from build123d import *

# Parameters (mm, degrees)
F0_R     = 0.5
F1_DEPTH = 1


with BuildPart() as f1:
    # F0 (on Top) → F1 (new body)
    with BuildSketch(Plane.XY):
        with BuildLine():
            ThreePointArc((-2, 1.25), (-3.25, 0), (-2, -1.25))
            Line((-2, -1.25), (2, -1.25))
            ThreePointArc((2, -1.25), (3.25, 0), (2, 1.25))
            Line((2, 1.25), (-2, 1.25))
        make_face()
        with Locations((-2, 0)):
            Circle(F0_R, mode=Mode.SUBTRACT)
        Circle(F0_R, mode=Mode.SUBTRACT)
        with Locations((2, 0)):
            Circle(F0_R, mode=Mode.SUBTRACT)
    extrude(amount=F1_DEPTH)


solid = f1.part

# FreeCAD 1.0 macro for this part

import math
import FreeCAD as App
import Part
import Sketcher

doc = App.newDocument("Part")
body = doc.addObject("PartDesign::Body", "Body")

# Sketch on XY plane
sketch1 = body.newObject("Sketcher::SketchObject", "Sketch")
sketch1.AttachmentSupport = (doc.getObject("XY_Plane"), [""])
sketch1.MapMode = "FlatFace"
sketch1.addGeometry(Part.ArcOfCircle(Part.Circle(App.Vector(-2, 0, 0), App.Vector(0, 0, 1), 1.25), math.radians(90), math.radians(270)), False)
sketch1.addGeometry(Part.LineSegment(App.Vector(-2, -1.25, 0), App.Vector(2, -1.25, 0)), False)
sketch1.addGeometry(Part.ArcOfCircle(Part.Circle(App.Vector(2, 0, 0), App.Vector(0, 0, 1), 1.25), math.radians(-90), math.radians(90)), False)
sketch1.addGeometry(Part.LineSegment(App.Vector(2, 1.25, 0), App.Vector(-2, 1.25, 0)), False)
sketch1.addGeometry(Part.Circle(App.Vector(-2, 0, 0), App.Vector(0, 0, 1), 0.5), False)
sketch1.addGeometry(Part.Circle(App.Vector(0, 0, 0), App.Vector(0, 0, 1), 0.5), False)
sketch1.addGeometry(Part.Circle(App.Vector(2, 0, 0), App.Vector(0, 0, 1), 0.5), False)
sketch1.addConstraint(Sketcher.Constraint("Tangent", 0, 2, 1, 1))
sketch1.addConstraint(Sketcher.Constraint("Tangent", 1, 2, 2, 1))
sketch1.addConstraint(Sketcher.Constraint("Tangent", 2, 2, 3, 1))
sketch1.addConstraint(Sketcher.Constraint("Tangent", 3, 2, 0, 1))
sketch1.addConstraint(Sketcher.Constraint("Horizontal", 1))
sketch1.addConstraint(Sketcher.Constraint("Horizontal", 3))
sketch1.addConstraint(Sketcher.Constraint("Coincident", 5, 3, -1, 1))
sketch1.addConstraint(Sketcher.Constraint("Coincident", 4, 3, 0, 3))
sketch1.addConstraint(Sketcher.Constraint("Coincident", 6, 3, 2, 3))
sketch1.addConstraint(Sketcher.Constraint("Equal", 4, 5))
sketch1.addConstraint(Sketcher.Constraint("Equal", 5, 6))
sketch1.addConstraint(Sketcher.Constraint("Symmetric", 0, 3, 2, 3, -1, 1))
sketch1.addConstraint(Sketcher.Constraint("Diameter", 4, 1.0))
sketch1.addConstraint(Sketcher.Constraint("DistanceX", 1, 1, 1, 2, 4.0))
sketch1.addConstraint(Sketcher.Constraint("Radius", 0, 1.25))
pad1 = body.newObject("PartDesign::Pad", "Pad")
pad1.Profile = sketch1
pad1.Length = 1

doc.recompute()
